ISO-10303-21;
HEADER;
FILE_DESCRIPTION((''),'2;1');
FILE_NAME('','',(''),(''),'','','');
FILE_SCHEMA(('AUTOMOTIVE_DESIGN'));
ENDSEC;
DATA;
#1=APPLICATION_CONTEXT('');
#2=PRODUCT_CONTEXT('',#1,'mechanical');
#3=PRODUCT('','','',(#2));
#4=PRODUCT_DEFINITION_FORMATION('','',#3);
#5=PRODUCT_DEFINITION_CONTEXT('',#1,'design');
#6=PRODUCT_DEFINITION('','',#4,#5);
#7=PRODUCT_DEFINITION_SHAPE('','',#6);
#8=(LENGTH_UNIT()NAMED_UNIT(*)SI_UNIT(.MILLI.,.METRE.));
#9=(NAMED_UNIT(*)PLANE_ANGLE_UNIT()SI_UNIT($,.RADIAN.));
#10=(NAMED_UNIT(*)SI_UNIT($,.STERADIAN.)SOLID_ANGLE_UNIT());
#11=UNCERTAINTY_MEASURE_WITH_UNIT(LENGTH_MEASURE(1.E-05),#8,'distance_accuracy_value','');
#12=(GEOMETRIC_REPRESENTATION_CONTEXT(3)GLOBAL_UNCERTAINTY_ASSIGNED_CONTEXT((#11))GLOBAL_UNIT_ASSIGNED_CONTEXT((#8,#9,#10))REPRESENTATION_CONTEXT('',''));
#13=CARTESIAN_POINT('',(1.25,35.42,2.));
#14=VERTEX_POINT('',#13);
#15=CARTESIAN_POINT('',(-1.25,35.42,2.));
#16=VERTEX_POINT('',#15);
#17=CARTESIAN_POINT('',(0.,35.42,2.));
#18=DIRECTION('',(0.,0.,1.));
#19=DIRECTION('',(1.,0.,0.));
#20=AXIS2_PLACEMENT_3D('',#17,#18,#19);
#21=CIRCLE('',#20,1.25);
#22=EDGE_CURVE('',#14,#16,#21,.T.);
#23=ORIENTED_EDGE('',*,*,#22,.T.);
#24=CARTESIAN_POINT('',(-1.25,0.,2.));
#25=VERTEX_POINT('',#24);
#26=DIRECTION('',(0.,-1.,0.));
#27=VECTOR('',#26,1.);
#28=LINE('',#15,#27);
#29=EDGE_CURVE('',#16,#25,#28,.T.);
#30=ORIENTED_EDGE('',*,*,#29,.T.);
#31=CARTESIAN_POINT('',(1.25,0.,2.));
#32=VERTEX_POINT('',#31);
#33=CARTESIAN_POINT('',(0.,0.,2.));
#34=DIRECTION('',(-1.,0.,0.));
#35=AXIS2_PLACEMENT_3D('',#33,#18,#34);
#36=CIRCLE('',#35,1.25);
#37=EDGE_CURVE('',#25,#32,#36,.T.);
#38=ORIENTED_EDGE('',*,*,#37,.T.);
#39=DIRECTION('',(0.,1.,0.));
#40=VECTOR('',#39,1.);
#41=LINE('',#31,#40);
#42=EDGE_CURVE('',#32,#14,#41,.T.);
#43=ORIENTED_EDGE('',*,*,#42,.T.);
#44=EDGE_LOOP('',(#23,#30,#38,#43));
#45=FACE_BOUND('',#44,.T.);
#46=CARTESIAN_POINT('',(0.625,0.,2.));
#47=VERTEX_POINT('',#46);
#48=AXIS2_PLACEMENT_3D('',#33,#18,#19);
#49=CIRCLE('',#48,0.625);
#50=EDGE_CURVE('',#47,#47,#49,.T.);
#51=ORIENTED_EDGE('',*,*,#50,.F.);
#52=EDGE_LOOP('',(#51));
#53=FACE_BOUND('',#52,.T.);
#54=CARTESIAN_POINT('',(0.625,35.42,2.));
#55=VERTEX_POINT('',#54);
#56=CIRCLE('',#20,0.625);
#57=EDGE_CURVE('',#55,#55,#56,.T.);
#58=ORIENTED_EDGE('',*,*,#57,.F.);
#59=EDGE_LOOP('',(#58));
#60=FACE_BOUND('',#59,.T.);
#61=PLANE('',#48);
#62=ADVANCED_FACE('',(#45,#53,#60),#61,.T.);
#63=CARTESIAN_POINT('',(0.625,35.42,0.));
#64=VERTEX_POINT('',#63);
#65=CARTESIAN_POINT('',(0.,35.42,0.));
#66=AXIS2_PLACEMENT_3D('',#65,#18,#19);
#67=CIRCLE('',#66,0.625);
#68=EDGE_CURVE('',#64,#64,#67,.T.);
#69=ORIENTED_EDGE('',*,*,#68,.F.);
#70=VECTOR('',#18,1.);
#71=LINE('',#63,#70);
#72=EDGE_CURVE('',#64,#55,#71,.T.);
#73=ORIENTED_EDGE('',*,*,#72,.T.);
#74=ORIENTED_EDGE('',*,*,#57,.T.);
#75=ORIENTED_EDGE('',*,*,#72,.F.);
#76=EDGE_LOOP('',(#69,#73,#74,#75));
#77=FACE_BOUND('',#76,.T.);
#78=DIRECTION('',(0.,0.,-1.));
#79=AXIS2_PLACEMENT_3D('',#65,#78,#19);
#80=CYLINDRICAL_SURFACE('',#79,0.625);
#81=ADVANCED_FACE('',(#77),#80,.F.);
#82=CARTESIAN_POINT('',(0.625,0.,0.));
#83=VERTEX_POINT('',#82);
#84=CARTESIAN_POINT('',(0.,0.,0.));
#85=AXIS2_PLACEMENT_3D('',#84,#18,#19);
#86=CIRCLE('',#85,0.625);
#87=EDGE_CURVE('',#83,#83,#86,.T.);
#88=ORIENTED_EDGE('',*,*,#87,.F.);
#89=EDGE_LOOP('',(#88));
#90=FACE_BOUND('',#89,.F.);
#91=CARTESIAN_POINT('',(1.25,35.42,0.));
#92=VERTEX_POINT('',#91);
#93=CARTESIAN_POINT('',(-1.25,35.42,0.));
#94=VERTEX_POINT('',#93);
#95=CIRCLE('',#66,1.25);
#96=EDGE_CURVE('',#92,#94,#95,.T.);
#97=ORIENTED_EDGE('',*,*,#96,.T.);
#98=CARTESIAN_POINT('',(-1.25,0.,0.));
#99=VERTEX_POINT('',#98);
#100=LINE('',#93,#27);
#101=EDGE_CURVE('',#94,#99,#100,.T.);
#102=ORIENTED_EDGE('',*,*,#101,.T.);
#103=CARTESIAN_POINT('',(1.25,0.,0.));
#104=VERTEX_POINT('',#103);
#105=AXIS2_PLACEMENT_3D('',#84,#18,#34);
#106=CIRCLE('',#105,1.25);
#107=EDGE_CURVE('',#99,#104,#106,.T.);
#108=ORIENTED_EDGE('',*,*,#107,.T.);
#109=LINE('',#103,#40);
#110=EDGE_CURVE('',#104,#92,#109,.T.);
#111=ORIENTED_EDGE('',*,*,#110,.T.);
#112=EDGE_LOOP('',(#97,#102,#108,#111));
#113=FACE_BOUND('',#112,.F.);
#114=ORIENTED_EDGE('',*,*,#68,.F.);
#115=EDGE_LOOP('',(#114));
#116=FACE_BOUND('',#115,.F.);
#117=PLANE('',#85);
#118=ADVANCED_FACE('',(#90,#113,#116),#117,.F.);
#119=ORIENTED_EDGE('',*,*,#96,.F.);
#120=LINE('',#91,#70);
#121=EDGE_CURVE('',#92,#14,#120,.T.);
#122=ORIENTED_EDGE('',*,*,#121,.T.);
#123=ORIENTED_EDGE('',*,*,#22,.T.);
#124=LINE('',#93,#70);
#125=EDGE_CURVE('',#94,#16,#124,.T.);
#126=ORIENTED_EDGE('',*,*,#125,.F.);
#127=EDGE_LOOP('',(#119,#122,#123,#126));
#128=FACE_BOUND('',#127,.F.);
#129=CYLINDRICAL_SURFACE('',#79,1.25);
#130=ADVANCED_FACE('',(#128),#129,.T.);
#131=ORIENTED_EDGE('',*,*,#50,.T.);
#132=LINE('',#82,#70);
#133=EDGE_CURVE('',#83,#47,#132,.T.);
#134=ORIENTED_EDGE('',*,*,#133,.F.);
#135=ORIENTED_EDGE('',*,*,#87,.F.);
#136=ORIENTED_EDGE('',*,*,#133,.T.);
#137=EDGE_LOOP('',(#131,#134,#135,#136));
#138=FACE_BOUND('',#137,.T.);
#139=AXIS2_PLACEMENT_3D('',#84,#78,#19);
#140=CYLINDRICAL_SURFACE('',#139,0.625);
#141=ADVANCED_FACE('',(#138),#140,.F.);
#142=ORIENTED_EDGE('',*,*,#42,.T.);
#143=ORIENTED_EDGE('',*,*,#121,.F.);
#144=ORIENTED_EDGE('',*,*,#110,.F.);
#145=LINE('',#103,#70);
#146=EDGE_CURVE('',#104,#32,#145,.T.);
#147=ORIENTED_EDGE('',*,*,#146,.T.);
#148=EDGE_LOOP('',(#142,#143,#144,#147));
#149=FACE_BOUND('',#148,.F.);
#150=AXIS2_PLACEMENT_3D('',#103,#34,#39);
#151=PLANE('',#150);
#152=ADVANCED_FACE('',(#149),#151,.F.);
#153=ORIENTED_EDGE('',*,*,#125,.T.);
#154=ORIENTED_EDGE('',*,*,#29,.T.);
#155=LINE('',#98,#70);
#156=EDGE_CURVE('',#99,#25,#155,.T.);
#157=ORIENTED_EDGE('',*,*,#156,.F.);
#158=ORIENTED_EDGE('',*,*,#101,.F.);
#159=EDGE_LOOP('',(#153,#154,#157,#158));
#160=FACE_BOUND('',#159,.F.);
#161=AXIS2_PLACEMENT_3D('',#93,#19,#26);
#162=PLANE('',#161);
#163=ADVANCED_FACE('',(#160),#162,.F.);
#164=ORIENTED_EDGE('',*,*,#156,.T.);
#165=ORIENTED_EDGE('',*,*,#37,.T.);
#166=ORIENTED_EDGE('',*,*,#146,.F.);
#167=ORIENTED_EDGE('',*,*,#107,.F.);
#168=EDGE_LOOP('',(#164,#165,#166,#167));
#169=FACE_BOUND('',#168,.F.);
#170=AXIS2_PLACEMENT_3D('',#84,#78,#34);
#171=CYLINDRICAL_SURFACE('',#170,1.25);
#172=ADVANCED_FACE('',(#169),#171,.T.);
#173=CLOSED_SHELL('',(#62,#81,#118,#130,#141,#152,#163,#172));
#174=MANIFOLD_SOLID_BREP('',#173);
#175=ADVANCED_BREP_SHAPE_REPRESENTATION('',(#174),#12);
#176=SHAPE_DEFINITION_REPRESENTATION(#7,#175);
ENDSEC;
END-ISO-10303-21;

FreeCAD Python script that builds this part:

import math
import FreeCAD as App
import Part
import Sketcher
from FreeCAD import Vector

doc = App.newDocument("Part")
body = doc.addObject("PartDesign::Body", "Body")

sketch1 = doc.addObject("Sketcher::SketchObject", "Sketch")
body.addObject(sketch1)
sketch1.AttachmentSupport = (doc.XY_Plane, [""])
sketch1.MapMode = "FlatFace"
sketch1.addGeometry([
    Part.ArcOfCircle(Part.Circle(Vector(0, 0, 0), Vector(0, 0, 1), 1.2), math.radians(180), math.radians(360)),
    Part.LineSegment(Vector(1.2, 0, 0), Vector(1.2, 35.4, 0)),
    Part.ArcOfCircle(Part.Circle(Vector(0, 35.4, 0), Vector(0, 0, 1), 1.2), math.radians(0), math.radians(180)),
    Part.LineSegment(Vector(-1.2, 35.4, 0), Vector(-1.2, 0, 0)),
    Part.Circle(Vector(0, 0, 0), Vector(0, 0, 1), 0.6),
    Part.Circle(Vector(0, 35.4, 0), Vector(0, 0, 1), 0.6),
], False)
sketch1.addConstraint([
    Sketcher.Constraint("Tangent", 0, 2, 1, 1),
    Sketcher.Constraint("Tangent", 1, 2, 2, 1),
    Sketcher.Constraint("Tangent", 2, 2, 3, 1),
    Sketcher.Constraint("Tangent", 3, 2, 0, 1),
    Sketcher.Constraint("Vertical", 1),
    Sketcher.Constraint("Vertical", 3),
    Sketcher.Constraint("Coincident", 0, 3, -1, 1),
    Sketcher.Constraint("Coincident", 4, 3, -1, 1),
    Sketcher.Constraint("Coincident", 5, 3, 2, 3),
    Sketcher.Constraint("Equal", 4, 5),
    Sketcher.Constraint("Diameter", 4, 1.25),
    Sketcher.Constraint("Radius", 0, 1.25),
    Sketcher.Constraint("DistanceY", 1, 1, 1, 2, 35.42),
])
pad1 = doc.addObject("PartDesign::Pad", "Pad")
body.addObject(pad1)
pad1.Profile = sketch1
pad1.Length = 2

doc.recompute()
